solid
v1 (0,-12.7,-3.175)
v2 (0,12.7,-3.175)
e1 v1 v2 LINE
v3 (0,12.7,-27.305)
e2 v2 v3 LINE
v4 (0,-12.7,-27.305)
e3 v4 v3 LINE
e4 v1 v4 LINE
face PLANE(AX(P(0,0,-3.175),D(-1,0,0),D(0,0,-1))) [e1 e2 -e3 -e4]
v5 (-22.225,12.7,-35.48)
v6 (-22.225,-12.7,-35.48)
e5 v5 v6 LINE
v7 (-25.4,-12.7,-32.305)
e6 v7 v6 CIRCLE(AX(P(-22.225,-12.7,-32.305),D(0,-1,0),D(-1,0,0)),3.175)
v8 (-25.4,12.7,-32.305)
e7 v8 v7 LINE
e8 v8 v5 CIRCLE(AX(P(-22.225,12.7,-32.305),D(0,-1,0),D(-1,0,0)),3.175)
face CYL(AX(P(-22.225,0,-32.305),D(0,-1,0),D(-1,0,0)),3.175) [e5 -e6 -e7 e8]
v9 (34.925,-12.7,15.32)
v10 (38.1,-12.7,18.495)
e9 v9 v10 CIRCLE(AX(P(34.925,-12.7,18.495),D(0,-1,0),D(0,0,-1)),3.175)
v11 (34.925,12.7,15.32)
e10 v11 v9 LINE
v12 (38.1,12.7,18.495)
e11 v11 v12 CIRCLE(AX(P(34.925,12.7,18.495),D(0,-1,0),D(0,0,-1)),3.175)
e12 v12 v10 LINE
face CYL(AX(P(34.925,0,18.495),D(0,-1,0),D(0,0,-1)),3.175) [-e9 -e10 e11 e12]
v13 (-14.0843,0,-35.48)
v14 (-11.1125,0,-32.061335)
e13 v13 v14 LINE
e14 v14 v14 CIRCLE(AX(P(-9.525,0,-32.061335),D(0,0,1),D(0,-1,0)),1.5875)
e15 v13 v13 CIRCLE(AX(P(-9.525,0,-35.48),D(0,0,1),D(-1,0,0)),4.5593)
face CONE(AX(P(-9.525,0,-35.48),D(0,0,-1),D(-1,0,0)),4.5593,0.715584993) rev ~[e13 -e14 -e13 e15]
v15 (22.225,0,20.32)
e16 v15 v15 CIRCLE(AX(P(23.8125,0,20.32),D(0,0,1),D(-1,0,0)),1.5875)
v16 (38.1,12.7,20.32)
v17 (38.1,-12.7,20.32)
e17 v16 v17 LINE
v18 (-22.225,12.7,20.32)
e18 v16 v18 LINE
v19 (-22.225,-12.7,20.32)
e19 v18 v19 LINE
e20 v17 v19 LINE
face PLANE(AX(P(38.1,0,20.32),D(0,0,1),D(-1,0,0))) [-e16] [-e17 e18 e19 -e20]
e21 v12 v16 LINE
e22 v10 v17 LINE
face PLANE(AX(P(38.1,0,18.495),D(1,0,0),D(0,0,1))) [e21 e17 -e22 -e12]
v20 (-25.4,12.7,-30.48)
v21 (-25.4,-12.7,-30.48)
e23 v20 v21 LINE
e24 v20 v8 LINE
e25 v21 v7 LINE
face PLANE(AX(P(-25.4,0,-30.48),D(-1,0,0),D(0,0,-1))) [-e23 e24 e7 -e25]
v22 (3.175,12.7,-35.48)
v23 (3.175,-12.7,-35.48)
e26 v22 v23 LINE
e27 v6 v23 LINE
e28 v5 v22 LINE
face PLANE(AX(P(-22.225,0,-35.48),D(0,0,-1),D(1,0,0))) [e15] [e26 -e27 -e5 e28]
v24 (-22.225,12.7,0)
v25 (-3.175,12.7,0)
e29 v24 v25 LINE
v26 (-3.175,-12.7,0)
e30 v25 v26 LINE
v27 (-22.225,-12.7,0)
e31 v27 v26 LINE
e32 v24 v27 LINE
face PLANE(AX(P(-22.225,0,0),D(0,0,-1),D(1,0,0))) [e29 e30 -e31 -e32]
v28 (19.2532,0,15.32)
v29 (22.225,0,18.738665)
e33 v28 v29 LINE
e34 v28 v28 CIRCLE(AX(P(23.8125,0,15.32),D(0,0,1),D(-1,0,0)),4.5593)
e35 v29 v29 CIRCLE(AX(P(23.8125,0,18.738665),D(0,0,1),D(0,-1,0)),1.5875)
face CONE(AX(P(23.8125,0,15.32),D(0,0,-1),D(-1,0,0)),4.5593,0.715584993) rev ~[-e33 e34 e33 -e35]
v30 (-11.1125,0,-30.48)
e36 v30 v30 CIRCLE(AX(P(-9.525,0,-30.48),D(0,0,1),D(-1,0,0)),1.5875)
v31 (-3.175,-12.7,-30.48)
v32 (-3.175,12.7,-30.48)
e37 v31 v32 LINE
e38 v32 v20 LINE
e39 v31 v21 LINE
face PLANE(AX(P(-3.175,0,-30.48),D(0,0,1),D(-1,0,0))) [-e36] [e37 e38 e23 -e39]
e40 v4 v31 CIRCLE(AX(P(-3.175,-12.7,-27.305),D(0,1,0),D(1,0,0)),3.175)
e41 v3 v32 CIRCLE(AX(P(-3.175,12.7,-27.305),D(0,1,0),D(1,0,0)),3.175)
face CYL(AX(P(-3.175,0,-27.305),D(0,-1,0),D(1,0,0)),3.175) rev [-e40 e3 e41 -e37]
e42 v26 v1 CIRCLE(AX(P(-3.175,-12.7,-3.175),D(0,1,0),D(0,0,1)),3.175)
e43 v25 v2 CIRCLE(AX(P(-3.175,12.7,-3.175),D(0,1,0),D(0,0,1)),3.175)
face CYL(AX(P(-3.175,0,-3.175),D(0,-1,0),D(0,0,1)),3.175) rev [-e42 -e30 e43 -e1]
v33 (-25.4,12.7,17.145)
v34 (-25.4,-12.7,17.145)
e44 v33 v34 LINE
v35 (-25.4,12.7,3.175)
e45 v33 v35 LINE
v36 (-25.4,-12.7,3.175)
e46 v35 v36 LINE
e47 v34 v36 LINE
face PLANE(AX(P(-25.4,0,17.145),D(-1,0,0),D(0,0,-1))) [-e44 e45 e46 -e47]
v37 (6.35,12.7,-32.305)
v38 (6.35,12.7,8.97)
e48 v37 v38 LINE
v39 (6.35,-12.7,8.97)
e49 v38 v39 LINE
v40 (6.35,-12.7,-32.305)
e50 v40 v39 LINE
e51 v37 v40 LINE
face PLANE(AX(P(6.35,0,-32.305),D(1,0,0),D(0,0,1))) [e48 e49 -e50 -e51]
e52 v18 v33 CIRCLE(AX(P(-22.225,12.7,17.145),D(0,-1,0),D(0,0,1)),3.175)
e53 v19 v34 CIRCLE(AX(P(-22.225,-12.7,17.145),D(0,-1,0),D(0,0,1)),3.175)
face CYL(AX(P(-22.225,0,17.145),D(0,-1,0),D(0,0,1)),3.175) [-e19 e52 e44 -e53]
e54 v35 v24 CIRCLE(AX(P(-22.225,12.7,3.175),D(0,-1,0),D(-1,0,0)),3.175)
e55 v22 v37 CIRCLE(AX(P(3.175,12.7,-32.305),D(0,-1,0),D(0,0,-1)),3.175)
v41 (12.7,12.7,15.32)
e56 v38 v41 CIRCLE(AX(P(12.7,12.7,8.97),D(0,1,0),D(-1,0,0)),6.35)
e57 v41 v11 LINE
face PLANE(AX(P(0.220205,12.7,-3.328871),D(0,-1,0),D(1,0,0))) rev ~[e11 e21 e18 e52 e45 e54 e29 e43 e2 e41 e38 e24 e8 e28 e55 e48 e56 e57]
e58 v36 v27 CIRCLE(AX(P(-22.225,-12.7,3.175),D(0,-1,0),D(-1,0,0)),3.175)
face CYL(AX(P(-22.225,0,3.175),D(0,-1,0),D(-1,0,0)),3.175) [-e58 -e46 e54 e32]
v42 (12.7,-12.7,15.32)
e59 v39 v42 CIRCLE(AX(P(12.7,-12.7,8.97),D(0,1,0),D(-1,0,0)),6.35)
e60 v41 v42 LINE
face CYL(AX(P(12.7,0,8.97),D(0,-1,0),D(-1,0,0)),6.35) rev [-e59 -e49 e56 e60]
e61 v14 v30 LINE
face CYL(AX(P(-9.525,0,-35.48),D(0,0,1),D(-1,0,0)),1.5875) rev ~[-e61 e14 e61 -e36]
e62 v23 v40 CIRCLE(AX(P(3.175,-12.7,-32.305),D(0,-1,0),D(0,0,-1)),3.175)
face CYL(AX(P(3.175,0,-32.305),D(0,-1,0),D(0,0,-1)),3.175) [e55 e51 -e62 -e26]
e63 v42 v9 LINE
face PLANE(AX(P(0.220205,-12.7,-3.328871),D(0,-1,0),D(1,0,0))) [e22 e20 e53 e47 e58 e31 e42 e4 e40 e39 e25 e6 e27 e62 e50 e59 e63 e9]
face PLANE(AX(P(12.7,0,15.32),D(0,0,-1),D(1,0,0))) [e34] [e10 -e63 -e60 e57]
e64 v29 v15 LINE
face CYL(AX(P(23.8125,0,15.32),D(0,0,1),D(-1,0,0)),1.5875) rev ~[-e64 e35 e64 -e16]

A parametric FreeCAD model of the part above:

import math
import FreeCAD as App
import Part
import Sketcher
from FreeCAD import Vector
Q = App.Units.Quantity

doc = App.newDocument("Part")
body = doc.addObject("PartDesign::Body", "Body")

# Sketch on XZ plane
sketch1 = body.newObject("Sketcher::SketchObject", "Sketch")
sketch1.AttachmentSupport = (doc.getObject("XZ_Plane"), [""])
sketch1.MapMode = "FlatFace"
sketch1.addGeometry(Part.LineSegment(Vector(-3.2, -30.5, 0), Vector(-25.4, -30.5, 0)), False)
sketch1.addGeometry(Part.LineSegment(Vector(-25.4, -30.5, 0), Vector(-25.4, -32.3, 0)), False)
sketch1.addGeometry(Part.ArcOfCircle(Part.Circle(Vector(-22.2, -32.3, 0), Vector(0, 0, 1), 3.2), math.radians(180), math.radians(270)), False)
sketch1.addGeometry(Part.LineSegment(Vector(-22.2, -35.5, 0), Vector(3.2, -35.5, 0)), False)
sketch1.addGeometry(Part.ArcOfCircle(Part.Circle(Vector(3.2, -32.3, 0), Vector(0, 0, 1), 3.2), math.radians(-90), math.radians(0)), False)
sketch1.addGeometry(Part.LineSegment(Vector(6.3, -32.3, 0), Vector(6.3, 9, 0)), False)
sketch1.addGeometry(Part.ArcOfCircle(Part.Circle(Vector(12.7, 9, 0), Vector(0, 0, 1), 6.3), math.radians(90), math.radians(180)), False)
sketch1.addGeometry(Part.LineSegment(Vector(12.7, 15.3, 0), Vector(34.9, 15.3, 0)), False)
sketch1.addGeometry(Part.ArcOfCircle(Part.Circle(Vector(34.9, 18.5, 0), Vector(0, 0, 1), 3.2), math.radians(-90), math.radians(0)), False)
sketch1.addGeometry(Part.LineSegment(Vector(38.1, 18.5, 0), Vector(38.1, 20.3, 0)), False)
sketch1.addGeometry(Part.LineSegment(Vector(38.1, 20.3, 0), Vector(-22.2, 20.3, 0)), False)
sketch1.addGeometry(Part.ArcOfCircle(Part.Circle(Vector(-22.2, 17.1, 0), Vector(0, 0, 1), 3.2), math.radians(90), math.radians(180)), False)
sketch1.addGeometry(Part.LineSegment(Vector(-25.4, 17.1, 0), Vector(-25.4, 3.2, 0)), False)
sketch1.addGeometry(Part.ArcOfCircle(Part.Circle(Vector(-22.2, 3.2, 0), Vector(0, 0, 1), 3.2), math.radians(180), math.radians(270)), False)
sketch1.addGeometry(Part.LineSegment(Vector(-22.2, 0, 0), Vector(-3.2, 0, 0)), False)
sketch1.addGeometry(Part.ArcOfCircle(Part.Circle(Vector(-3.2, -3.2, 0), Vector(0, 0, 1), 3.2), math.radians(0), math.radians(90)), False)
sketch1.addGeometry(Part.LineSegment(Vector(0, -3.2, 0), Vector(0, -27.3, 0)), False)
sketch1.addGeometry(Part.ArcOfCircle(Part.Circle(Vector(-3.2, -27.3, 0), Vector(0, 0, 1), 3.2), math.radians(-90), math.radians(0)), False)
sketch1.addConstraint(Sketcher.Constraint("Coincident", 0, 2, 1, 1))
sketch1.addConstraint(Sketcher.Constraint("Tangent", 1, 2, 2, 1))
sketch1.addConstraint(Sketcher.Constraint("Tangent", 2, 2, 3, 1))
sketch1.addConstraint(Sketcher.Constraint("Tangent", 3, 2, 4, 1))
sketch1.addConstraint(Sketcher.Constraint("Tangent", 4, 2, 5, 1))
sketch1.addConstraint(Sketcher.Constraint("Tangent", 5, 2, 6, 2))
sketch1.addConstraint(Sketcher.Constraint("Tangent", 6, 1, 7, 1))
sketch1.addConstraint(Sketcher.Constraint("Tangent", 7, 2, 8, 1))
sketch1.addConstraint(Sketcher.Constraint("Tangent", 8, 2, 9, 1))
sketch1.addConstraint(Sketcher.Constraint("Coincident", 9, 2, 10, 1))
sketch1.addConstraint(Sketcher.Constraint("Tangent", 10, 2, 11, 1))
sketch1.addConstraint(Sketcher.Constraint("Tangent", 11, 2, 12, 1))
sketch1.addConstraint(Sketcher.Constraint("Tangent", 12, 2, 13, 1))
sketch1.addConstraint(Sketcher.Constraint("Tangent", 13, 2, 14, 1))
sketch1.addConstraint(Sketcher.Constraint("Tangent", 14, 2, 15, 2))
sketch1.addConstraint(Sketcher.Constraint("Tangent", 15, 1, 16, 1))
sketch1.addConstraint(Sketcher.Constraint("Tangent", 16, 2, 17, 2))
sketch1.addConstraint(Sketcher.Constraint("Tangent", 17, 1, 0, 1))
sketch1.addConstraint(Sketcher.Constraint("Horizontal", 0))
sketch1.addConstraint(Sketcher.Constraint("Vertical", 1))
sketch1.addConstraint(Sketcher.Constraint("Horizontal", 3))
sketch1.addConstraint(Sketcher.Constraint("Vertical", 5))
sketch1.addConstraint(Sketcher.Constraint("Horizontal", 7))
sketch1.addConstraint(Sketcher.Constraint("Vertical", 9))
sketch1.addConstraint(Sketcher.Constraint("Horizontal", 10))
sketch1.addConstraint(Sketcher.Constraint("Vertical", 12))
sketch1.addConstraint(Sketcher.Constraint("Horizontal", 14))
sketch1.addConstraint(Sketcher.Constraint("Vertical", 16))
sketch1.addConstraint(Sketcher.Constraint("Equal", 2, 4))
sketch1.addConstraint(Sketcher.Constraint("Equal", 4, 8))
sketch1.addConstraint(Sketcher.Constraint("Equal", 8, 11))
sketch1.addConstraint(Sketcher.Constraint("Equal", 11, 13))
sketch1.addConstraint(Sketcher.Constraint("Equal", 13, 15))
sketch1.addConstraint(Sketcher.Constraint("Equal", 15, 17))
sketch1.addConstraint(Sketcher.Constraint("PointOnObject", 13, 2, -1))
sketch1.addConstraint(Sketcher.Constraint("PointOnObject", 15, 1, -2))
sketch1.addConstraint(Sketcher.Constraint("Vertical", 2, 3, 11, 3))
sketch1.addConstraint(Sketcher.Constraint("Equal", 0, 7))
sketch1.addConstraint(Sketcher.Constraint("Equal", 1, 9))
sketch1.addConstraint(Sketcher.Constraint("DistanceX", 3, 1, 3, 2, Q("1 in")))
sketch1.addConstraint(Sketcher.Constraint("Radius", 6, Q("0.25 in")))
sketch1.addConstraint(Sketcher.Constraint("DistanceX", 0, 2, -1, 1, Q("1 in")))
sketch1.addConstraint(Sketcher.Constraint("Radius", 2, Q("0.125 in")))
sketch1.addConstraint(Sketcher.Constraint("DistanceY", 4, 3, 8, 3, Q("2 in")))
sketch1.addConstraint(Sketcher.Constraint("DistanceY", 12, 2, 12, 1, Q("0.55 in")))
sketch1.addConstraint(Sketcher.Constraint("DistanceY", 1, 2, 1, 1, Q("1.825 mm")))
pad1 = body.newObject("PartDesign::Pad", "Pad")
pad1.Profile = sketch1
pad1.Length = Q("1 in")
pad1.Midplane = True

# Sketch on XY plane
sketch2 = body.newObject("Sketcher::SketchObject", "Sketch001")
sketch2.AttachmentSupport = (doc.getObject("XY_Plane"), [""])
sketch2.MapMode = "FlatFace"
sketch2.AttachmentOffset = App.Placement(Vector(0, 0, 15.32), App.Rotation())
sketch2.addGeometry(Part.Circle(Vector(23.8, 0, 0), Vector(0, 0, 1), 1.6), False)
sketch2.addConstraint(Sketcher.Constraint("PointOnObject", 0, 3, -1))
sketch2.addConstraint(Sketcher.Constraint("Diameter", 0, Q("0.125 in")))
sketch2.addConstraint(Sketcher.Constraint("DistanceX", -1, 1, 0, 3, Q("0.9375 in")))
doc.recompute()
hole = body.newObject("PartDesign::Hole", "Hole")
hole.Profile = sketch2
hole.ThreadType = "None"
hole.Diameter = Q("0.125 in")
hole.DepthType = "Dimension"
hole.Depth = Q("1 in")
hole.DrillPoint = "Angled"
hole.DrillPointAngle = 118
hole.HoleCutType = "Countersink"
hole.HoleCutDiameter = Q("0.359 in")
hole.HoleCutCountersinkAngle = 82
hole.Reversed = True

# Sketch on XY plane
sketch3 = body.newObject("Sketcher::SketchObject", "Sketch002")
sketch3.AttachmentSupport = (doc.getObject("XY_Plane"), [""])
sketch3.MapMode = "FlatFace"
sketch3.AttachmentOffset = App.Placement(Vector(0, 0, -35.48), App.Rotation())
sketch3.addGeometry(Part.Circle(Vector(-9.5, 0, 0), Vector(0, 0, 1), 1.6), False)
sketch3.addConstraint(Sketcher.Constraint("PointOnObject", 0, 3, -1))
sketch3.addConstraint(Sketcher.Constraint("Diameter", 0, Q("0.125 in")))
sketch3.addConstraint(Sketcher.Constraint("DistanceX", 0, 3, -1, 1, Q("0.375 in")))
doc.recompute()
hole2 = body.newObject("PartDesign::Hole", "Hole001")
hole2.Profile = sketch3
hole2.ThreadType = "None"
hole2.Diameter = Q("0.125 in")
hole2.DepthType = "Dimension"
hole2.Depth = Q("1 in")
hole2.DrillPoint = "Angled"
hole2.DrillPointAngle = 118
hole2.HoleCutType = "Countersink"
hole2.HoleCutDiameter = Q("0.359 in")
hole2.HoleCutCountersinkAngle = 82
hole2.Reversed = True

doc.recompute()
